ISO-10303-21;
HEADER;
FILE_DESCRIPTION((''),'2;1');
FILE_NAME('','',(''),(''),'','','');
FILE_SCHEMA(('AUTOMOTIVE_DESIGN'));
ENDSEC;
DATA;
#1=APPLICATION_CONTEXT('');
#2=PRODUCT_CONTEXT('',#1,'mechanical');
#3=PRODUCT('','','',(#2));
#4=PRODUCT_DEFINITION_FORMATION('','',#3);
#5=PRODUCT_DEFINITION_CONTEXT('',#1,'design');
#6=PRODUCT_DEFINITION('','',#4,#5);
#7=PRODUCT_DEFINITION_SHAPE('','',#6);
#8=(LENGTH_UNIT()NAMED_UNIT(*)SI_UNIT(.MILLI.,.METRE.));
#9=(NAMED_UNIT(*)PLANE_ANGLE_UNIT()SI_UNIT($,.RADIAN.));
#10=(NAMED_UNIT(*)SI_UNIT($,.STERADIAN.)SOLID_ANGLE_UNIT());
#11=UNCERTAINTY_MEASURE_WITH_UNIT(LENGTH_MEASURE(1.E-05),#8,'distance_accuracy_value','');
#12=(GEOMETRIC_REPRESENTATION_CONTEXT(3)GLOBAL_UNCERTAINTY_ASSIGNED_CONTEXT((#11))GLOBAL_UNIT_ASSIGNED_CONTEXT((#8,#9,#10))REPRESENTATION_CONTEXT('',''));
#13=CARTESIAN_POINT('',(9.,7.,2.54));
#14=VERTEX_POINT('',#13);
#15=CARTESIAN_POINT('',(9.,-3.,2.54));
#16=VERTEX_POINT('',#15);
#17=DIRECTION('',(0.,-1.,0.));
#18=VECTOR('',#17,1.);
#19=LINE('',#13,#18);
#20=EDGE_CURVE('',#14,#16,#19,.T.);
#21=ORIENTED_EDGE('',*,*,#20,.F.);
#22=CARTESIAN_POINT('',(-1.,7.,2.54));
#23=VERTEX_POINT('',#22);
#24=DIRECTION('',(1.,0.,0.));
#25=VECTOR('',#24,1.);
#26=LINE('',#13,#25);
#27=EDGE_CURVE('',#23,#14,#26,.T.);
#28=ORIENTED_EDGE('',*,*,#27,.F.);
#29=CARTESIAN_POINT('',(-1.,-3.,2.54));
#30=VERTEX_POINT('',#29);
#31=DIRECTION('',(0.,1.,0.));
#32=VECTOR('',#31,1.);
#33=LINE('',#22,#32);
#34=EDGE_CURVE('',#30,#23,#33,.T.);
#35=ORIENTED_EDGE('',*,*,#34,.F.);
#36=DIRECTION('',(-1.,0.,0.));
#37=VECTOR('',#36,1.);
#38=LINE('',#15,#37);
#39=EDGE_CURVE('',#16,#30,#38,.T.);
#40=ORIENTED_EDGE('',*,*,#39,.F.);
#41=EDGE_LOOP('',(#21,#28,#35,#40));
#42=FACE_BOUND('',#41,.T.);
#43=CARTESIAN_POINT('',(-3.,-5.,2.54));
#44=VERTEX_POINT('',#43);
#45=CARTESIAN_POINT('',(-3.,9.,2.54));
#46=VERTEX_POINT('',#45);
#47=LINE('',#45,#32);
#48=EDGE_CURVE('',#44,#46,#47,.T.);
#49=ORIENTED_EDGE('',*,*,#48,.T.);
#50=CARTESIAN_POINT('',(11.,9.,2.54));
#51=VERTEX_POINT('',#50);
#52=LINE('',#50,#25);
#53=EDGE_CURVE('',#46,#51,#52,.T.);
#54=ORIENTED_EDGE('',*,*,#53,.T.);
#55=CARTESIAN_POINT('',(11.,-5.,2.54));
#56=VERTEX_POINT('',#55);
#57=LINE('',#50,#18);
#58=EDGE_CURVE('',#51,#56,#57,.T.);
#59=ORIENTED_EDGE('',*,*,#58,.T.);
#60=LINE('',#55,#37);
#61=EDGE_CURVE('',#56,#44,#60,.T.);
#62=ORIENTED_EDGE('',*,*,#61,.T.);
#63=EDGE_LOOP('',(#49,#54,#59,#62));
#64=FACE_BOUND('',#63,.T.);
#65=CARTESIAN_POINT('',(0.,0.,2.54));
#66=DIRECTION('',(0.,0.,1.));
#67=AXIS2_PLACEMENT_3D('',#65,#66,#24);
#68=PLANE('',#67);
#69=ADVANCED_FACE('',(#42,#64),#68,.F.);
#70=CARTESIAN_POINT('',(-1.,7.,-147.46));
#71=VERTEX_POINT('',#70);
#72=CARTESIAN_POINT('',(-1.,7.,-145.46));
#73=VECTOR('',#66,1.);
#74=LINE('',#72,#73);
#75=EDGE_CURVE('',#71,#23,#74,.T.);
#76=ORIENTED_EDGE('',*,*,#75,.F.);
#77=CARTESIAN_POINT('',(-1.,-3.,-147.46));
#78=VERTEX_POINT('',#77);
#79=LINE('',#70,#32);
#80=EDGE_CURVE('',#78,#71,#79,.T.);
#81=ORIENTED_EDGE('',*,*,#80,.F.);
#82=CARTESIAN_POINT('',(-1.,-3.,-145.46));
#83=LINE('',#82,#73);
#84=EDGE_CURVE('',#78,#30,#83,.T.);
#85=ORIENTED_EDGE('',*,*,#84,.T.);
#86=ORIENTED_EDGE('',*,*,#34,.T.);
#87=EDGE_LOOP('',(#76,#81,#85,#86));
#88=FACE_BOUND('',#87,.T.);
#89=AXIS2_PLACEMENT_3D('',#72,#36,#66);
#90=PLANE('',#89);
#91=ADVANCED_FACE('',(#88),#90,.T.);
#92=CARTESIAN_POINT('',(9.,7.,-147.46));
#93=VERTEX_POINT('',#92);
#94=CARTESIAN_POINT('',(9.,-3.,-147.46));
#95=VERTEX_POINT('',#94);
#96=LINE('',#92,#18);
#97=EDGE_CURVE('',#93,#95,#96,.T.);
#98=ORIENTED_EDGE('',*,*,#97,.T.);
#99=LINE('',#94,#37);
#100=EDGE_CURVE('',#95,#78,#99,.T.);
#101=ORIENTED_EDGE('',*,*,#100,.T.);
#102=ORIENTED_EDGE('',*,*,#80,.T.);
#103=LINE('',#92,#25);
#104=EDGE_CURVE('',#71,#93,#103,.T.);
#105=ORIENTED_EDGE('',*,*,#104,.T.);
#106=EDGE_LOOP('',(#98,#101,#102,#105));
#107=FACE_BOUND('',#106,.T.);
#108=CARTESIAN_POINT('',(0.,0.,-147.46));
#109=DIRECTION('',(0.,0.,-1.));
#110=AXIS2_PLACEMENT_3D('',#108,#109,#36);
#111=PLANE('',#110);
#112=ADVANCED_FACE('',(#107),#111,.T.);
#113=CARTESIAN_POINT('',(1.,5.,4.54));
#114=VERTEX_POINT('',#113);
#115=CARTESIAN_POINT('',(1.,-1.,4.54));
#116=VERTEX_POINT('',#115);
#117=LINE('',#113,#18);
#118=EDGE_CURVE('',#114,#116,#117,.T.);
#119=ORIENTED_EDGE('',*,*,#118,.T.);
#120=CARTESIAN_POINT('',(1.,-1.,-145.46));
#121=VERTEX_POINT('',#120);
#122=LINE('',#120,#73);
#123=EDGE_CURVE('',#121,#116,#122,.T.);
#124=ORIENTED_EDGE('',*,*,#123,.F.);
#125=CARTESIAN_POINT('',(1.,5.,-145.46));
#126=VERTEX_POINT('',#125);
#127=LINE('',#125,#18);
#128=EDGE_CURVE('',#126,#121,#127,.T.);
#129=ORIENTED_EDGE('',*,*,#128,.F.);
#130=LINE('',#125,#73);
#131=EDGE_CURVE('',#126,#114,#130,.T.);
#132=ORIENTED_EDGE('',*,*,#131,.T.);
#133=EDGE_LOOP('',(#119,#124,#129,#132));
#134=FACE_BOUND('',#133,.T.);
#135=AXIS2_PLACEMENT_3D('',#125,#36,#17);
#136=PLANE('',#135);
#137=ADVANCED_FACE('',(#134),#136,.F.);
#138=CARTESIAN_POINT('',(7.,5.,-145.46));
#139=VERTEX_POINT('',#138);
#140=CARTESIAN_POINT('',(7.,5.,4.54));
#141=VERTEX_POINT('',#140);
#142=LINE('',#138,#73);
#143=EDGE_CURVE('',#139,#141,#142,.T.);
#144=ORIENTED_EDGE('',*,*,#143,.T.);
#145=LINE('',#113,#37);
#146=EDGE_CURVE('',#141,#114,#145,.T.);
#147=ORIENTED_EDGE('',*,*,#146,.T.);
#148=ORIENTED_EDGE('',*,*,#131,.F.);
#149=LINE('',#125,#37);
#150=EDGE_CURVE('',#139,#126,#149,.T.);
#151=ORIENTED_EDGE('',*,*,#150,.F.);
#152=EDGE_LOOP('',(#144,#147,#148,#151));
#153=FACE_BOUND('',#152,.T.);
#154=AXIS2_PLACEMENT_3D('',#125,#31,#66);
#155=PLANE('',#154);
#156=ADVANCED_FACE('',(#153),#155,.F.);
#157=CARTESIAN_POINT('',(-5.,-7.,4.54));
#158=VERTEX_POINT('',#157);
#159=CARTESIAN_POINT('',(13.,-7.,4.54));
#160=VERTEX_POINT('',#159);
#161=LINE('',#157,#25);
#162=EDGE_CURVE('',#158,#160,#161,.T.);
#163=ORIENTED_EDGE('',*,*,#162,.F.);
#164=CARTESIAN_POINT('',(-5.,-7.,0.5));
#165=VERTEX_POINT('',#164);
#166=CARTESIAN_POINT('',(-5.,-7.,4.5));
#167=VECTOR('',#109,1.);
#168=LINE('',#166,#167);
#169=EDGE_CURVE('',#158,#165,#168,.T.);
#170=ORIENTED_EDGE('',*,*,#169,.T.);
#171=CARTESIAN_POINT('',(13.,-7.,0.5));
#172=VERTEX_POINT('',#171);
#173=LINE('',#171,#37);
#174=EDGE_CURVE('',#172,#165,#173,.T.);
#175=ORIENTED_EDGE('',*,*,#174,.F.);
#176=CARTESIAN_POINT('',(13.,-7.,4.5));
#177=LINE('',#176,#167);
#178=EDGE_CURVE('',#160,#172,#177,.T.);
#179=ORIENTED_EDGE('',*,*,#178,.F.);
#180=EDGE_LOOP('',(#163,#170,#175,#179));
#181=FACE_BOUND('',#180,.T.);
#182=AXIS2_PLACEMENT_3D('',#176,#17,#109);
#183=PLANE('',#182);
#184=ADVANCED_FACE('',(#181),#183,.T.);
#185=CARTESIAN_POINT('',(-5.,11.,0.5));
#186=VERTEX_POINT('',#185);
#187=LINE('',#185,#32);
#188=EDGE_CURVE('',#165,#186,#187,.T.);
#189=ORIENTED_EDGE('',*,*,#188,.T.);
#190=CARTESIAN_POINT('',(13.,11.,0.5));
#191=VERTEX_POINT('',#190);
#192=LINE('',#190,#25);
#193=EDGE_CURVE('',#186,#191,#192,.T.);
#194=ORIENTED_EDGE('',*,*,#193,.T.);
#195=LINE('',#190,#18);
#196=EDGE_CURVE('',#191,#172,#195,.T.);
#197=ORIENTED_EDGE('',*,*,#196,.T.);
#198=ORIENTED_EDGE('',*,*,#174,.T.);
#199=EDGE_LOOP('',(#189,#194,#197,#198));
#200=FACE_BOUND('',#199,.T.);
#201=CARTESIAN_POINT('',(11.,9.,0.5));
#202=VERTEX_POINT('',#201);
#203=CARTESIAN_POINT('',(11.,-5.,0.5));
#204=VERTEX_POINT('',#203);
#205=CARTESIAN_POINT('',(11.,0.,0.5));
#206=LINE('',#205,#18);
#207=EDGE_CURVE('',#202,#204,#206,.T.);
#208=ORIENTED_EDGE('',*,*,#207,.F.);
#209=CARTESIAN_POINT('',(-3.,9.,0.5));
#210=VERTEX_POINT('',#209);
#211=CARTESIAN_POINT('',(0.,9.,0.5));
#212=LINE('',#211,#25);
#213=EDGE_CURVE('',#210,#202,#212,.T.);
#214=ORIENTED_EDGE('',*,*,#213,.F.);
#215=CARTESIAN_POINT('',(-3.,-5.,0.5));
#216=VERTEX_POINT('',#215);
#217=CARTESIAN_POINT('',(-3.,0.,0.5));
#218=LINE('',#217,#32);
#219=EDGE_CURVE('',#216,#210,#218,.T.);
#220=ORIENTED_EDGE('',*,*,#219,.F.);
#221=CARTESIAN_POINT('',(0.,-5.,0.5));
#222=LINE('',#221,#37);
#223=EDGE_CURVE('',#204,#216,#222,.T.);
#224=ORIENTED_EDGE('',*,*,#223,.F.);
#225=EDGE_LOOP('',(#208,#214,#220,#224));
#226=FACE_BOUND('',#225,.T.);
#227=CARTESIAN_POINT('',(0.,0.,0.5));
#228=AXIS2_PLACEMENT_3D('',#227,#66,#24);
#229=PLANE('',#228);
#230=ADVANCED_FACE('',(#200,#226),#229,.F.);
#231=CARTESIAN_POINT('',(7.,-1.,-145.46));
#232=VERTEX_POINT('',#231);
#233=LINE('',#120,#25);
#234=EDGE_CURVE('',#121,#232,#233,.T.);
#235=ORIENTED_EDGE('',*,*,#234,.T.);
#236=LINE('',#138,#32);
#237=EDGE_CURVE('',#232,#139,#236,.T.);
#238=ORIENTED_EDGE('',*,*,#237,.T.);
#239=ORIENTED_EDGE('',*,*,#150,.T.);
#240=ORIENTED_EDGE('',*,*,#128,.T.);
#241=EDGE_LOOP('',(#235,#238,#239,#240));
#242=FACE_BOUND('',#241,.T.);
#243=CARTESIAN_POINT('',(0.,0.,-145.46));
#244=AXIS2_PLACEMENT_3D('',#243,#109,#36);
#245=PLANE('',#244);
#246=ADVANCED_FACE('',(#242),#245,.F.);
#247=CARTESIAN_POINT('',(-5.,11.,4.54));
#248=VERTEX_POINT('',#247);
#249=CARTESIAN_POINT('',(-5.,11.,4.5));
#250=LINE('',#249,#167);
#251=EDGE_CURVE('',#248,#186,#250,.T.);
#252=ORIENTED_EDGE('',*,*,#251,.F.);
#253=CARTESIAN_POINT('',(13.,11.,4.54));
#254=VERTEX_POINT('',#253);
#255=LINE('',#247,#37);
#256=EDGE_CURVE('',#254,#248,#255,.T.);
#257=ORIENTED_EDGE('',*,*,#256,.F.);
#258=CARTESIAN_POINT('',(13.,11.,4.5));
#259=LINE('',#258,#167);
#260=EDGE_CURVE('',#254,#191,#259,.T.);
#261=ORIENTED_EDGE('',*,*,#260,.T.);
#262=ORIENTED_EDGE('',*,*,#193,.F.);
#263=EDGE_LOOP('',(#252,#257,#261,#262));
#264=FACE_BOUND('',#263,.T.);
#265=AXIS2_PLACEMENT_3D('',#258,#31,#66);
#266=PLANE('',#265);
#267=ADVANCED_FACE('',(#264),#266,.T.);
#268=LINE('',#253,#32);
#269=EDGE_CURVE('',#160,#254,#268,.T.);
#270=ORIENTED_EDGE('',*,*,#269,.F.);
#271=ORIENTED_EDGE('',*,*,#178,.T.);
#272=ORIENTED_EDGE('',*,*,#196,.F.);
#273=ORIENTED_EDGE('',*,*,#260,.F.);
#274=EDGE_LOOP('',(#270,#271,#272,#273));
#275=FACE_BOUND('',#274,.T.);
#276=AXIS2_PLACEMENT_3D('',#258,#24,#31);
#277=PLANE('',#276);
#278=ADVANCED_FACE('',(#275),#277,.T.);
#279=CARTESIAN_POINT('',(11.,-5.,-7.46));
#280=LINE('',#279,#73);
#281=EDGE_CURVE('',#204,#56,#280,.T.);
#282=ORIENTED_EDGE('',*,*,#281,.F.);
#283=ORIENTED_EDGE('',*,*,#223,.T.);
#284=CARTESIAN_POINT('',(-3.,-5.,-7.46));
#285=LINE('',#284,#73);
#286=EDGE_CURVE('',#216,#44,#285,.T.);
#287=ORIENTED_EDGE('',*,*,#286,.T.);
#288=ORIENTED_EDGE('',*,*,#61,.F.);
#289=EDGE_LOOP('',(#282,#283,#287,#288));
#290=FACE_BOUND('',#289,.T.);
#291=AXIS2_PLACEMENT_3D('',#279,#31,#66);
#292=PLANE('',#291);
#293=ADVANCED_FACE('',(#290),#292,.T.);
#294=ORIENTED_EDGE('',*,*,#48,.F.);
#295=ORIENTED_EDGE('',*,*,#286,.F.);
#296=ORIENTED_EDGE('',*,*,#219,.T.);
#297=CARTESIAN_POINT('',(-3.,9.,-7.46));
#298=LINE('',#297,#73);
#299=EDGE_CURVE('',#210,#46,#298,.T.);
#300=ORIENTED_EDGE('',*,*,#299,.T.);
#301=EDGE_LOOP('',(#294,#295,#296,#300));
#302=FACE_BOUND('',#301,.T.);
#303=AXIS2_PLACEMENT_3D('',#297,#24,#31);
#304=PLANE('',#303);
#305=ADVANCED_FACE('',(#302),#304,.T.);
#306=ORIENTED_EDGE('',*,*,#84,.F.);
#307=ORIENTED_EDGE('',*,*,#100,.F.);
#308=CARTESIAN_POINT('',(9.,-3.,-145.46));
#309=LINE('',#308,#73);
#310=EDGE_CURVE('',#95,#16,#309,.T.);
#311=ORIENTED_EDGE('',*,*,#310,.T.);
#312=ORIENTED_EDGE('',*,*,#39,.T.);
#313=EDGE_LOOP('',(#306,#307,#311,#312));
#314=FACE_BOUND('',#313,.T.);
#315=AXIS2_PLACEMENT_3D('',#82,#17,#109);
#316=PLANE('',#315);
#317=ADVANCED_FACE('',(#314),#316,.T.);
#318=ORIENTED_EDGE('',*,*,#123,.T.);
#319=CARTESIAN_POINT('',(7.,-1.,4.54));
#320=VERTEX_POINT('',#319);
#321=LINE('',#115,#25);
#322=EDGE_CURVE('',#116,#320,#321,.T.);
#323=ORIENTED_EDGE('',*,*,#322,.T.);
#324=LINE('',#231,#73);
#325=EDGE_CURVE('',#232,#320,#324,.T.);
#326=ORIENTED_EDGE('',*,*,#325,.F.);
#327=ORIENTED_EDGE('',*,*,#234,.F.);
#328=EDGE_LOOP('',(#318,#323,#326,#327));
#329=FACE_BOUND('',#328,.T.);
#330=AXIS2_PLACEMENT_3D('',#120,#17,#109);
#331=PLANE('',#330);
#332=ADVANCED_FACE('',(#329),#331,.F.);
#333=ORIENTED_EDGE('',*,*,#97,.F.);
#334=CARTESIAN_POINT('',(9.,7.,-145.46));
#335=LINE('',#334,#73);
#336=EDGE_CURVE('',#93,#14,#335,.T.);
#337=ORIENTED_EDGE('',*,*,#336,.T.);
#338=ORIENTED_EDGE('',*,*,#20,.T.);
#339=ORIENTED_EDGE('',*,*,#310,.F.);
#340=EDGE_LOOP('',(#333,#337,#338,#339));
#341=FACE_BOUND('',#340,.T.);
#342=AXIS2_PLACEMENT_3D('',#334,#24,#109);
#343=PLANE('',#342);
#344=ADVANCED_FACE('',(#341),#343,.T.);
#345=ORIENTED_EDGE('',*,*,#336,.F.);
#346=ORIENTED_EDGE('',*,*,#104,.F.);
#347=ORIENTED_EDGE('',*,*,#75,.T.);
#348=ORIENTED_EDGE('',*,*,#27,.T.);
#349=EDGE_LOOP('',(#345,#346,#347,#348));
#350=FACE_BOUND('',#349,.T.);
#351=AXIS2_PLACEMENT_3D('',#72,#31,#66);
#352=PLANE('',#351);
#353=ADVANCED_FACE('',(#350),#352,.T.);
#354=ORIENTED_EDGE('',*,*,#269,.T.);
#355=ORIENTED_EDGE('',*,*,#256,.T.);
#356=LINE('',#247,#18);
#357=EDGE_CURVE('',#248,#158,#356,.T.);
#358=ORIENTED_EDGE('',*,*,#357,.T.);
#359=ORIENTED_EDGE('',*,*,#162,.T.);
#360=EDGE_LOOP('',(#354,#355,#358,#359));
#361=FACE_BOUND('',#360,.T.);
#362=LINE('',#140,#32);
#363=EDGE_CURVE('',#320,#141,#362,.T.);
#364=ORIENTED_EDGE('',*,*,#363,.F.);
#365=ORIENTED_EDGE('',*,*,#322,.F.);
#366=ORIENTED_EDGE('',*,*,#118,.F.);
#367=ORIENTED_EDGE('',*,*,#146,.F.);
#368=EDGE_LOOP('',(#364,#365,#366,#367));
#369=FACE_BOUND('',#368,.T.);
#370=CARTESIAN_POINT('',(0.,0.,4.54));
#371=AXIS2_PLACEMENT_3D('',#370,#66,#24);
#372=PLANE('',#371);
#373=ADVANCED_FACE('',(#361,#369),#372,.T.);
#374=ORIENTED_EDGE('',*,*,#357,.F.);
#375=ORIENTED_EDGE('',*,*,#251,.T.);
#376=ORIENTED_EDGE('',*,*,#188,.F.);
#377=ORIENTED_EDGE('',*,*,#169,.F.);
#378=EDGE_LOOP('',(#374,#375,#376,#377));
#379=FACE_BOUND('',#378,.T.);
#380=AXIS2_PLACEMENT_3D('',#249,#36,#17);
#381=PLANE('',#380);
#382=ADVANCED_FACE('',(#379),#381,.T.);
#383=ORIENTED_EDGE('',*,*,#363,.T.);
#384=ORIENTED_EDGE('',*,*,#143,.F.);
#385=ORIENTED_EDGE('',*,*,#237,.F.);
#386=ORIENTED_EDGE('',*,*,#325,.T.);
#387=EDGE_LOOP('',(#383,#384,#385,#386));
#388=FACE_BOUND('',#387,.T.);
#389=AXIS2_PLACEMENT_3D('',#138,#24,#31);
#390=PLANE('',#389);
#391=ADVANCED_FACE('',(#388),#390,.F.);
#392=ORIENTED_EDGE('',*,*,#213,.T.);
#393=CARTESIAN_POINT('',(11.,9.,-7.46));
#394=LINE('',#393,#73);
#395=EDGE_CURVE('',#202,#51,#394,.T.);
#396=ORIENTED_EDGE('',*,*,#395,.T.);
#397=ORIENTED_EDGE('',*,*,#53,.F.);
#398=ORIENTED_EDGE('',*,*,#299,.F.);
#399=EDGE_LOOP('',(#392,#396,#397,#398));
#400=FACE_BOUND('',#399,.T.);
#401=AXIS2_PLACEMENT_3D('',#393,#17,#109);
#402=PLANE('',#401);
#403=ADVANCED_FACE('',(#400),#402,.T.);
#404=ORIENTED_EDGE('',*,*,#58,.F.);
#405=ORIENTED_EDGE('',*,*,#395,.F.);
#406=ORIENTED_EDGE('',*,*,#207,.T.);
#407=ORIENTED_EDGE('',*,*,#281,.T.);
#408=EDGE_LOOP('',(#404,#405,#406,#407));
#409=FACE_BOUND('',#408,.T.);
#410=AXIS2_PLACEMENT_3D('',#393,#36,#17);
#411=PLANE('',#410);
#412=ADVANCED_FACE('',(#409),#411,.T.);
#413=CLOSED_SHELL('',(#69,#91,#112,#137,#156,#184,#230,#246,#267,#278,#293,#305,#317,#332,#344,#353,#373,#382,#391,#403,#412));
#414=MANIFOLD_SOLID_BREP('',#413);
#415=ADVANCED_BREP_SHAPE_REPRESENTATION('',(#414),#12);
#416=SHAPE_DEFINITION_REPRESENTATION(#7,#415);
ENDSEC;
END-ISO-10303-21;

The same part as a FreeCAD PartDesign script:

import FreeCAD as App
import Part
import Sketcher

doc = App.newDocument("Part")
body = doc.addObject("PartDesign::Body", "Body")

sketch1 = body.newObject("Sketcher::SketchObject", "Sketch")
sketch1.AttachmentSupport = (doc.getObject("XY_Plane"), [""])
sketch1.MapMode = "FlatFace"
sketch1.addGeometry(Part.LineSegment(App.Vector(-2, 8, 0), App.Vector(-2, -2, 0)), False)
sketch1.addGeometry(Part.LineSegment(App.Vector(-2, -2, 0), App.Vector(8, -2, 0)), False)
sketch1.addGeometry(Part.LineSegment(App.Vector(8, -2, 0), App.Vector(8, 8, 0)), False)
sketch1.addGeometry(Part.LineSegment(App.Vector(8, 8, 0), App.Vector(-2, 8, 0)), False)
sketch1.addGeometry(Part.LineSegment(App.Vector(6, 0, 0), App.Vector(0, 0, 0)), False)
sketch1.addGeometry(Part.LineSegment(App.Vector(0, 0, 0), App.Vector(0, 6, 0)), False)
sketch1.addGeometry(Part.LineSegment(App.Vector(0, 6, 0), App.Vector(6, 6, 0)), False)
sketch1.addGeometry(Part.LineSegment(App.Vector(6, 6, 0), App.Vector(6, 0, 0)), False)
sketch1.addConstraint(Sketcher.Constraint("Coincident", 0, 2, 1, 1))
sketch1.addConstraint(Sketcher.Constraint("Coincident", 1, 2, 2, 1))
sketch1.addConstraint(Sketcher.Constraint("Coincident", 2, 2, 3, 1))
sketch1.addConstraint(Sketcher.Constraint("Coincident", 3, 2, 0, 1))
sketch1.addConstraint(Sketcher.Constraint("Coincident", 4, 2, 5, 1))
sketch1.addConstraint(Sketcher.Constraint("Coincident", 5, 2, 6, 1))
sketch1.addConstraint(Sketcher.Constraint("Coincident", 6, 2, 7, 1))
sketch1.addConstraint(Sketcher.Constraint("Coincident", 7, 2, 4, 1))
sketch1.addConstraint(Sketcher.Constraint("Vertical", 0))
sketch1.addConstraint(Sketcher.Constraint("Horizontal", 1))
sketch1.addConstraint(Sketcher.Constraint("Vertical", 2))
sketch1.addConstraint(Sketcher.Constraint("Horizontal", 3))
sketch1.addConstraint(Sketcher.Constraint("Horizontal", 4))
sketch1.addConstraint(Sketcher.Constraint("Vertical", 5))
sketch1.addConstraint(Sketcher.Constraint("Horizontal", 6))
sketch1.addConstraint(Sketcher.Constraint("Vertical", 7))
sketch1.addConstraint(Sketcher.Constraint("Coincident", 4, 2, -1, 1))
sketch1.addConstraint(Sketcher.Constraint("Equal", 3, 0))
sketch1.addConstraint(Sketcher.Constraint("Equal", 6, 5))
sketch1.addConstraint(Sketcher.Constraint("DistanceX", 1, 1, 1, 2, 10.0))
sketch1.addConstraint(Sketcher.Constraint("DistanceX", 4, 2, 4, 1, 6.0))
sketch1.addConstraint(Sketcher.Constraint("DistanceX", 0, 2, -1, 1, 2.0))
sketch1.addConstraint(Sketcher.Constraint("DistanceY", 0, 2, -1, 1, 2.0))
pad1 = body.newObject("PartDesign::Pad", "Pad")
pad1.Profile = sketch1
pad1.Length = 2.54

sketch2 = body.newObject("Sketcher::SketchObject", "Sketch001")
sketch2.AttachmentSupport = (doc.getObject("XY_Plane"), [""])
sketch2.MapMode = "FlatFace"
sketch2.addGeometry(Part.LineSegment(App.Vector(8, -2, 0), App.Vector(8, 8, 0)), False)
sketch2.addGeometry(Part.LineSegment(App.Vector(8, 8, 0), App.Vector(10, 8, 0)), False)
sketch2.addGeometry(Part.LineSegment(App.Vector(10, 8, 0), App.Vector(10, -4, 0)), False)
sketch2.addGeometry(Part.LineSegment(App.Vector(10, -4, 0), App.Vector(-2, -4, 0)), False)
sketch2.addGeometry(Part.LineSegment(App.Vector(-2, -4, 0), App.Vector(-2, -2, 0)), False)
sketch2.addGeometry(Part.LineSegment(App.Vector(-2, -2, 0), App.Vector(8, -2, 0)), False)
sketch2.addConstraint(Sketcher.Constraint("Coincident", 0, 2, 1, 1))
sketch2.addConstraint(Sketcher.Constraint("Coincident", 1, 2, 2, 1))
sketch2.addConstraint(Sketcher.Constraint("Coincident", 2, 2, 3, 1))
sketch2.addConstraint(Sketcher.Constraint("Coincident", 3, 2, 4, 1))
sketch2.addConstraint(Sketcher.Constraint("Coincident", 4, 2, 5, 1))
sketch2.addConstraint(Sketcher.Constraint("Coincident", 5, 2, 0, 1))
sketch2.addConstraint(Sketcher.Constraint("Vertical", 0))
sketch2.addConstraint(Sketcher.Constraint("Horizontal", 1))
sketch2.addConstraint(Sketcher.Constraint("Vertical", 2))
sketch2.addConstraint(Sketcher.Constraint("Horizontal", 3))
sketch2.addConstraint(Sketcher.Constraint("Vertical", 4))
sketch2.addConstraint(Sketcher.Constraint("Horizontal", 5))
sketch2.addConstraint(Sketcher.Constraint("Equal", 5, 0))
sketch2.addConstraint(Sketcher.Constraint("Equal", 3, 2))
sketch2.addConstraint(Sketcher.Constraint("DistanceX", 1, 1, 1, 2, 2.0))
sketch2.addConstraint(Sketcher.Constraint("DistanceX", 3, 2, 3, 1, 12.0))
sketch2.addConstraint(Sketcher.Constraint("DistanceX", -1, 1, 0, 2, 8.0))
sketch2.addConstraint(Sketcher.Constraint("DistanceY", -1, 1, 0, 2, 8.0))
pad2 = body.newObject("PartDesign::Pad", "Pad001")
pad2.Profile = sketch2
pad2.Length = 2.54

sketch3 = body.newObject("Sketcher::SketchObject", "Sketch002")
sketch3.AttachmentSupport = (doc.getObject("XY_Plane"), [""])
sketch3.MapMode = "FlatFace"
sketch3.addGeometry(Part.LineSegment(App.Vector(6, 0, 0), App.Vector(6, 6, 0)), False)
sketch3.addGeometry(Part.LineSegment(App.Vector(6, 6, 0), App.Vector(8, 6, 0)), False)
sketch3.addGeometry(Part.LineSegment(App.Vector(8, 6, 0), App.Vector(8, -2, 0)), False)
sketch3.addGeometry(Part.LineSegment(App.Vector(8, -2, 0), App.Vector(0, -2, 0)), False)
sketch3.addGeometry(Part.LineSegment(App.Vector(0, -2, 0), App.Vector(0, 0, 0)), False)
sketch3.addGeometry(Part.LineSegment(App.Vector(0, 0, 0), App.Vector(6, 0, 0)), False)
sketch3.addConstraint(Sketcher.Constraint("Coincident", 0, 2, 1, 1))
sketch3.addConstraint(Sketcher.Constraint("Coincident", 1, 2, 2, 1))
sketch3.addConstraint(Sketcher.Constraint("Coincident", 2, 2, 3, 1))
sketch3.addConstraint(Sketcher.Constraint("Coincident", 3, 2, 4, 1))
sketch3.addConstraint(Sketcher.Constraint("Coincident", 4, 2, 5, 1))
sketch3.addConstraint(Sketcher.Constraint("Coincident", 5, 2, 0, 1))
sketch3.addConstraint(Sketcher.Constraint("Vertical", 0))
sketch3.addConstraint(Sketcher.Constraint("Horizontal", 1))
sketch3.addConstraint(Sketcher.Constraint("Vertical", 2))
sketch3.addConstraint(Sketcher.Constraint("Horizontal", 3))
sketch3.addConstraint(Sketcher.Constraint("Vertical", 4))
sketch3.addConstraint(Sketcher.Constraint("Horizontal", 5))
sketch3.addConstraint(Sketcher.Constraint("Coincident", 4, 2, -1, 1))
sketch3.addConstraint(Sketcher.Constraint("Equal", 5, 0))
sketch3.addConstraint(Sketcher.Constraint("Equal", 3, 2))
sketch3.addConstraint(Sketcher.Constraint("DistanceX", 1, 1, 1, 2, 2.0))
sketch3.addConstraint(Sketcher.Constraint("DistanceX", 3, 2, 3, 1, 8.0))
pocket1 = body.newObject("PartDesign::Pocket", "Pocket")
pocket1.Profile = sketch3
pocket1.Length = 2.54
pocket1.Reversed = True

sketch4 = body.newObject("Sketcher::SketchObject", "Sketch003")
sketch4.AttachmentSupport = (doc.getObject("XY_Plane"), [""])
sketch4.MapMode = "FlatFace"
sketch4.addGeometry(Part.LineSegment(App.Vector(10, -4, 0), App.Vector(10, 8, 0)), False)
sketch4.addGeometry(Part.LineSegment(App.Vector(10, 8, 0), App.Vector(12, 8, 0)), False)
sketch4.addGeometry(Part.LineSegment(App.Vector(12, 8, 0), App.Vector(12, -6, 0)), False)
sketch4.addGeometry(Part.LineSegment(App.Vector(12, -6, 0), App.Vector(-2, -6, 0)), False)
sketch4.addGeometry(Part.LineSegment(App.Vector(-2, -6, 0), App.Vector(-2, -4, 0)), False)
sketch4.addGeometry(Part.LineSegment(App.Vector(-2, -4, 0), App.Vector(10, -4, 0)), False)
sketch4.addConstraint(Sketcher.Constraint("Coincident", 0, 2, 1, 1))
sketch4.addConstraint(Sketcher.Constraint("Coincident", 1, 2, 2, 1))
sketch4.addConstraint(Sketcher.Constraint("Coincident", 2, 2, 3, 1))
sketch4.addConstraint(Sketcher.Constraint("Coincident", 3, 2, 4, 1))
sketch4.addConstraint(Sketcher.Constraint("Coincident", 4, 2, 5, 1))
sketch4.addConstraint(Sketcher.Constraint("Coincident", 5, 2, 0, 1))
sketch4.addConstraint(Sketcher.Constraint("Vertical", 0))
sketch4.addConstraint(Sketcher.Constraint("Horizontal", 1))
sketch4.addConstraint(Sketcher.Constraint("Vertical", 2))
sketch4.addConstraint(Sketcher.Constraint("Horizontal", 3))
sketch4.addConstraint(Sketcher.Constraint("Vertical", 4))
sketch4.addConstraint(Sketcher.Constraint("Horizontal", 5))
sketch4.addConstraint(Sketcher.Constraint("Equal", 5, 0))
sketch4.addConstraint(Sketcher.Constraint("Equal", 3, 2))
sketch4.addConstraint(Sketcher.Constraint("DistanceX", 1, 1, 1, 2, 2.0))
sketch4.addConstraint(Sketcher.Constraint("DistanceX", 3, 2, 3, 1, 14.0))
sketch4.addConstraint(Sketcher.Constraint("DistanceX", -1, 1, 0, 2, 10.0))
sketch4.addConstraint(Sketcher.Constraint("DistanceY", -1, 1, 0, 2, 8.0))
pad3 = body.newObject("PartDesign::Pad", "Pad002")
pad3.Profile = sketch4
pad3.Length = 2.54

sketch5 = body.newObject("Sketcher::SketchObject", "Sketch004")
sketch5.AttachmentSupport = (doc.getObject("XY_Plane"), [""])
sketch5.MapMode = "FlatFace"
sketch5.addGeometry(Part.LineSegment(App.Vector(12, 8, 0), App.Vector(-2, 8, 0)), False)
sketch5.addGeometry(Part.LineSegment(App.Vector(-2, 8, 0), App.Vector(-2, -6, 0)), False)
sketch5.addGeometry(Part.LineSegment(App.Vector(-2, -6, 0), App.Vector(-4, -6, 0)), False)
sketch5.addGeometry(Part.LineSegment(App.Vector(-4, -6, 0), App.Vector(-4, 10, 0)), False)
sketch5.addGeometry(Part.LineSegment(App.Vector(-4, 10, 0), App.Vector(12, 10, 0)), False)
sketch5.addGeometry(Part.LineSegment(App.Vector(12, 10, 0), App.Vector(12, 8, 0)), False)
sketch5.addConstraint(Sketcher.Constraint("Coincident", 0, 2, 1, 1))
sketch5.addConstraint(Sketcher.Constraint("Coincident", 1, 2, 2, 1))
sketch5.addConstraint(Sketcher.Constraint("Coincident", 2, 2, 3, 1))
sketch5.addConstraint(Sketcher.Constraint("Coincident", 3, 2, 4, 1))
sketch5.addConstraint(Sketcher.Constraint("Coincident", 4, 2, 5, 1))
sketch5.addConstraint(Sketcher.Constraint("Coincident", 5, 2, 0, 1))
sketch5.addConstraint(Sketcher.Constraint("Horizontal", 0))
sketch5.addConstraint(Sketcher.Constraint("Vertical", 1))
sketch5.addConstraint(Sketcher.Constraint("Horizontal", 2))
sketch5.addConstraint(Sketcher.Constraint("Vertical", 3))
sketch5.addConstraint(Sketcher.Constraint("Horizontal", 4))
sketch5.addConstraint(Sketcher.Constraint("Vertical", 5))
sketch5.addConstraint(Sketcher.Constraint("Equal", 0, 1))
sketch5.addConstraint(Sketcher.Constraint("Equal", 4, 3))
sketch5.addConstraint(Sketcher.Constraint("DistanceX", 0, 2, 0, 1, 14.0))
sketch5.addConstraint(Sketcher.Constraint("DistanceX", 2, 2, 2, 1, 2.0))
sketch5.addConstraint(Sketcher.Constraint("DistanceX", 0, 2, -1, 1, 2.0))
sketch5.addConstraint(Sketcher.Constraint("DistanceY", -1, 1, 0, 2, 8.0))
pad4 = body.newObject("PartDesign::Pad", "Pad003")
pad4.Profile = sketch5
pad4.Length = 2.54

sketch6 = body.newObject("Sketcher::SketchObject", "Sketch005")
sketch6.AttachmentSupport = (doc.getObject("XY_Plane"), [""])
sketch6.MapMode = "FlatFace"
sketch6.addGeometry(Part.LineSegment(App.Vector(12, 10, 0), App.Vector(12, -6, 0)), False)
sketch6.addGeometry(Part.LineSegment(App.Vector(12, -6, 0), App.Vector(-4, -6, 0)), False)
sketch6.addGeometry(Part.LineSegment(App.Vector(-4, -6, 0), App.Vector(-4, 10, 0)), False)
sketch6.addGeometry(Part.LineSegment(App.Vector(-4, 10, 0), App.Vector(12, 10, 0)), False)
sketch6.addGeometry(Part.LineSegment(App.Vector(-2, -4, 0), App.Vector(10, -4, 0)), False)
sketch6.addGeometry(Part.LineSegment(App.Vector(10, -4, 0), App.Vector(10, 8, 0)), False)
sketch6.addGeometry(Part.LineSegment(App.Vector(10, 8, 0), App.Vector(-2, 8, 0)), False)
sketch6.addGeometry(Part.LineSegment(App.Vector(-2, 8, 0), App.Vector(-2, -4, 0)), False)
sketch6.addConstraint(Sketcher.Constraint("Coincident", 0, 2, 1, 1))
sketch6.addConstraint(Sketcher.Constraint("Coincident", 1, 2, 2, 1))
sketch6.addConstraint(Sketcher.Constraint("Coincident", 2, 2, 3, 1))
sketch6.addConstraint(Sketcher.Constraint("Coincident", 3, 2, 0, 1))
sketch6.addConstraint(Sketcher.Constraint("Coincident", 4, 2, 5, 1))
sketch6.addConstraint(Sketcher.Constraint("Coincident", 5, 2, 6, 1))
sketch6.addConstraint(Sketcher.Constraint("Coincident", 6, 2, 7, 1))
sketch6.addConstraint(Sketcher.Constraint("Coincident", 7, 2, 4, 1))
sketch6.addConstraint(Sketcher.Constraint("Vertical", 0))
sketch6.addConstraint(Sketcher.Constraint("Horizontal", 1))
sketch6.addConstraint(Sketcher.Constraint("Vertical", 2))
sketch6.addConstraint(Sketcher.Constraint("Horizontal", 3))
sketch6.addConstraint(Sketcher.Constraint("Horizontal", 4))
sketch6.addConstraint(Sketcher.Constraint("Vertical", 5))
sketch6.addConstraint(Sketcher.Constraint("Horizontal", 6))
sketch6.addConstraint(Sketcher.Constraint("Vertical", 7))
sketch6.addConstraint(Sketcher.Constraint("Equal", 3, 0))
sketch6.addConstraint(Sketcher.Constraint("Equal", 6, 5))
sketch6.addConstraint(Sketcher.Constraint("DistanceX", 1, 2, 1, 1, 16.0))
sketch6.addConstraint(Sketcher.Constraint("DistanceX", 4, 1, 4, 2, 12.0))
sketch6.addConstraint(Sketcher.Constraint("DistanceX", -1, 1, 0, 2, 12.0))
sketch6.addConstraint(Sketcher.Constraint("DistanceY", 0, 2, -1, 1, 6.0))
sketch6.addConstraint(Sketcher.Constraint("DistanceX", -1, 1, 4, 2, 10.0))
sketch6.addConstraint(Sketcher.Constraint("DistanceY", 4, 2, -1, 1, 4.0))
pocket2 = body.newObject("PartDesign::Pocket", "Pocket001")
pocket2.Profile = sketch6
pocket2.Length = 0.5
pocket2.Reversed = True

sketch7 = body.newObject("Sketcher::SketchObject", "Sketch006")
sketch7.AttachmentSupport = (doc.getObject("XY_Plane"), [""])
sketch7.MapMode = "FlatFace"
sketch7.addGeometry(Part.LineSegment(App.Vector(10, 8, 0), App.Vector(10, -4, 0)), False)
sketch7.addGeometry(Part.LineSegment(App.Vector(10, -4, 0), App.Vector(-2, -4, 0)), False)
sketch7.addGeometry(Part.LineSegment(App.Vector(-2, -4, 0), App.Vector(-2, 8, 0)), False)
sketch7.addGeometry(Part.LineSegment(App.Vector(-2, 8, 0), App.Vector(10, 8, 0)), False)
sketch7.addGeometry(Part.LineSegment(App.Vector(0, -2, 0), App.Vector(8, -2, 0)), False)
sketch7.addGeometry(Part.LineSegment(App.Vector(8, -2, 0), App.Vector(8, 6, 0)), False)
sketch7.addGeometry(Part.LineSegment(App.Vector(8, 6, 0), App.Vector(0, 6, 0)), False)
sketch7.addGeometry(Part.LineSegment(App.Vector(0, 6, 0), App.Vector(0, -2, 0)), False)
sketch7.addConstraint(Sketcher.Constraint("Coincident", 0, 2, 1, 1))
sketch7.addConstraint(Sketcher.Constraint("Coincident", 1, 2, 2, 1))
sketch7.addConstraint(Sketcher.Constraint("Coincident", 2, 2, 3, 1))
sketch7.addConstraint(Sketcher.Constraint("Coincident", 3, 2, 0, 1))
sketch7.addConstraint(Sketcher.Constraint("Coincident", 4, 2, 5, 1))
sketch7.addConstraint(Sketcher.Constraint("Coincident", 5, 2, 6, 1))
sketch7.addConstraint(Sketcher.Constraint("Coincident", 6, 2, 7, 1))
sketch7.addConstraint(Sketcher.Constraint("Coincident", 7, 2, 4, 1))
sketch7.addConstraint(Sketcher.Constraint("Vertical", 0))
sketch7.addConstraint(Sketcher.Constraint("Horizontal", 1))
sketch7.addConstraint(Sketcher.Constraint("Vertical", 2))
sketch7.addConstraint(Sketcher.Constraint("Horizontal", 3))
sketch7.addConstraint(Sketcher.Constraint("Horizontal", 4))
sketch7.addConstraint(Sketcher.Constraint("Vertical", 5))
sketch7.addConstraint(Sketcher.Constraint("Horizontal", 6))
sketch7.addConstraint(Sketcher.Constraint("Vertical", 7))
sketch7.addConstraint(Sketcher.Constraint("PointOnObject", 6, 2, -2))
sketch7.addConstraint(Sketcher.Constraint("Equal", 3, 0))
sketch7.addConstraint(Sketcher.Constraint("Equal", 6, 5))
sketch7.addConstraint(Sketcher.Constraint("DistanceX", 1, 2, 1, 1, 12.0))
sketch7.addConstraint(Sketcher.Constraint("DistanceX", 4, 1, 4, 2, 8.0))
sketch7.addConstraint(Sketcher.Constraint("DistanceX", -1, 1, 0, 2, 10.0))
sketch7.addConstraint(Sketcher.Constraint("DistanceY", 0, 2, -1, 1, 4.0))
sketch7.addConstraint(Sketcher.Constraint("DistanceY", 4, 2, -1, 1, 2.0))
pocket3 = body.newObject("PartDesign::Pocket", "Pocket002")
pocket3.Profile = sketch7
pocket3.Length = 10
pocket3.Reversed = True

sketch8 = body.newObject("Sketcher::SketchObject", "Sketch007")
sketch8.AttachmentSupport = (doc.getObject("XY_Plane"), [""])
sketch8.MapMode = "FlatFace"
sketch8.AttachmentOffset = App.Placement(App.Vector(0, 0, 2.54), App.Rotation())
sketch8.addGeometry(Part.LineSegment(App.Vector(-4, 10, 0), App.Vector(-4, -6, 0)), False)
sketch8.addGeometry(Part.LineSegment(App.Vector(-4, -6, 0), App.Vector(12, -6, 0)), False)
sketch8.addGeometry(Part.LineSegment(App.Vector(12, -6, 0), App.Vector(12, 10, 0)), False)
sketch8.addGeometry(Part.LineSegment(App.Vector(12, 10, 0), App.Vector(-4, 10, 0)), False)
sketch8.addGeometry(Part.LineSegment(App.Vector(8, -2, 0), App.Vector(0, -2, 0)), False)
sketch8.addGeometry(Part.LineSegment(App.Vector(0, -2, 0), App.Vector(0, 6, 0)), False)
sketch8.addGeometry(Part.LineSegment(App.Vector(0, 6, 0), App.Vector(8, 6, 0)), False)
sketch8.addGeometry(Part.LineSegment(App.Vector(8, 6, 0), App.Vector(8, -2, 0)), False)
sketch8.addConstraint(Sketcher.Constraint("Coincident", 0, 2, 1, 1))
sketch8.addConstraint(Sketcher.Constraint("Coincident", 1, 2, 2, 1))
sketch8.addConstraint(Sketcher.Constraint("Coincident", 2, 2, 3, 1))
sketch8.addConstraint(Sketcher.Constraint("Coincident", 3, 2, 0, 1))
sketch8.addConstraint(Sketcher.Constraint("Coincident", 4, 2, 5, 1))
sketch8.addConstraint(Sketcher.Constraint("Coincident", 5, 2, 6, 1))
sketch8.addConstraint(Sketcher.Constraint("Coincident", 6, 2, 7, 1))
sketch8.addConstraint(Sketcher.Constraint("Coincident", 7, 2, 4, 1))
sketch8.addConstraint(Sketcher.Constraint("Vertical", 0))
sketch8.addConstraint(Sketcher.Constraint("Horizontal", 1))
sketch8.addConstraint(Sketcher.Constraint("Vertical", 2))
sketch8.addConstraint(Sketcher.Constraint("Horizontal", 3))
sketch8.addConstraint(Sketcher.Constraint("Horizontal", 4))
sketch8.addConstraint(Sketcher.Constraint("Vertical", 5))
sketch8.addConstraint(Sketcher.Constraint("Horizontal", 6))
sketch8.addConstraint(Sketcher.Constraint("Vertical", 7))
sketch8.addConstraint(Sketcher.Constraint("PointOnObject", 4, 2, -2))
sketch8.addConstraint(Sketcher.Constraint("Equal", 3, 0))
sketch8.addConstraint(Sketcher.Constraint("Equal", 6, 5))
sketch8.addConstraint(Sketcher.Constraint("DistanceX", 1, 1, 1, 2, 16.0))
sketch8.addConstraint(Sketcher.Constraint("DistanceX", 4, 2, 4, 1, 8.0))
sketch8.addConstraint(Sketcher.Constraint("DistanceX", 0, 2, -1, 1, 4.0))
sketch8.addConstraint(Sketcher.Constraint("DistanceY", 0, 2, -1, 1, 6.0))
sketch8.addConstraint(Sketcher.Constraint("DistanceY", 4, 2, -1, 1, 2.0))
pad5 = body.newObject("PartDesign::Pad", "Pad004")
pad5.Profile = sketch8
pad5.Length = 2

sketch9 = body.newObject("Sketcher::SketchObject", "Sketch008")
sketch9.AttachmentSupport = (doc.getObject("XY_Plane"), [""])
sketch9.MapMode = "FlatFace"
sketch9.AttachmentOffset = App.Placement(App.Vector(0, 0, 2.54), App.Rotation())
sketch9.addGeometry(Part.LineSegment(App.Vector(9, 7, 0), App.Vector(9, -3, 0)), False)
sketch9.addGeometry(Part.LineSegment(App.Vector(9, -3, 0), App.Vector(-1, -3, 0)), False)
sketch9.addGeometry(Part.LineSegment(App.Vector(-1, -3, 0), App.Vector(-1, 7, 0)), False)
sketch9.addGeometry(Part.LineSegment(App.Vector(-1, 7, 0), App.Vector(9, 7, 0)), False)
sketch9.addGeometry(Part.LineSegment(App.Vector(1, -1, 0), App.Vector(7, -1, 0)), False)
sketch9.addGeometry(Part.LineSegment(App.Vector(7, -1, 0), App.Vector(7, 5, 0)), False)
sketch9.addGeometry(Part.LineSegment(App.Vector(7, 5, 0), App.Vector(1, 5, 0)), False)
sketch9.addGeometry(Part.LineSegment(App.Vector(1, 5, 0), App.Vector(1, -1, 0)), False)
sketch9.addConstraint(Sketcher.Constraint("Coincident", 0, 2, 1, 1))
sketch9.addConstraint(Sketcher.Constraint("Coincident", 1, 2, 2, 1))
sketch9.addConstraint(Sketcher.Constraint("Coincident", 2, 2, 3, 1))
sketch9.addConstraint(Sketcher.Constraint("Coincident", 3, 2, 0, 1))
sketch9.addConstraint(Sketcher.Constraint("Coincident", 4, 2, 5, 1))
sketch9.addConstraint(Sketcher.Constraint("Coincident", 5, 2, 6, 1))
sketch9.addConstraint(Sketcher.Constraint("Coincident", 6, 2, 7, 1))
sketch9.addConstraint(Sketcher.Constraint("Coincident", 7, 2, 4, 1))
sketch9.addConstraint(Sketcher.Constraint("Vertical", 0))
sketch9.addConstraint(Sketcher.Constraint("Horizontal", 1))
sketch9.addConstraint(Sketcher.Constraint("Vertical", 2))
sketch9.addConstraint(Sketcher.Constraint("Horizontal", 3))
sketch9.addConstraint(Sketcher.Constraint("Horizontal", 4))
sketch9.addConstraint(Sketcher.Constraint("Vertical", 5))
sketch9.addConstraint(Sketcher.Constraint("Horizontal", 6))
sketch9.addConstraint(Sketcher.Constraint("Vertical", 7))
sketch9.addConstraint(Sketcher.Constraint("Equal", 3, 0))
sketch9.addConstraint(Sketcher.Constraint("Equal", 6, 5))
sketch9.addConstraint(Sketcher.Constraint("DistanceX", 1, 2, 1, 1, 10.0))
sketch9.addConstraint(Sketcher.Constraint("DistanceX", 4, 1, 4, 2, 6.0))
sketch9.addConstraint(Sketcher.Constraint("DistanceX", -1, 1, 0, 2, 9.0))
sketch9.addConstraint(Sketcher.Constraint("DistanceY", 0, 2, -1, 1, 3.0))
sketch9.addConstraint(Sketcher.Constraint("DistanceX", -1, 1, 4, 2, 7.0))
sketch9.addConstraint(Sketcher.Constraint("DistanceY", 4, 2, -1, 1, 1.0))
pocket4 = body.newObject("PartDesign::Pocket", "Pocket003")
pocket4.Profile = sketch9
pocket4.Length = 2
pocket4.Reversed = True

sketch10 = body.newObject("Sketcher::SketchObject", "Sketch009")
sketch10.AttachmentSupport = (doc.getObject("XY_Plane"), [""])
sketch10.MapMode = "FlatFace"
sketch10.AttachmentOffset = App.Placement(App.Vector(0, 0, 2.54), App.Rotation())
sketch10.addGeometry(Part.LineSegment(App.Vector(11, 9, 0), App.Vector(11, -5, 0)), False)
sketch10.addGeometry(Part.LineSegment(App.Vector(11, -5, 0), App.Vector(-3, -5, 0)), False)
sketch10.addGeometry(Part.LineSegment(App.Vector(-3, -5, 0), App.Vector(-3, 9, 0)), False)
sketch10.addGeometry(Part.LineSegment(App.Vector(-3, 9, 0), App.Vector(11, 9, 0)), False)
sketch10.addGeometry(Part.LineSegment(App.Vector(-2, -4, 0), App.Vector(10, -4, 0)), False)
sketch10.addGeometry(Part.LineSegment(App.Vector(10, -4, 0), App.Vector(10, 8, 0)), False)
sketch10.addGeometry(Part.LineSegment(App.Vector(10, 8, 0), App.Vector(-2, 8, 0)), False)
sketch10.addGeometry(Part.LineSegment(App.Vector(-2, 8, 0), App.Vector(-2, -4, 0)), False)
sketch10.addConstraint(Sketcher.Constraint("Coincident", 0, 2, 1, 1))
sketch10.addConstraint(Sketcher.Constraint("Coincident", 1, 2, 2, 1))
sketch10.addConstraint(Sketcher.Constraint("Coincident", 2, 2, 3, 1))
sketch10.addConstraint(Sketcher.Constraint("Coincident", 3, 2, 0, 1))
sketch10.addConstraint(Sketcher.Constraint("Coincident", 4, 2, 5, 1))
sketch10.addConstraint(Sketcher.Constraint("Coincident", 5, 2, 6, 1))
sketch10.addConstraint(Sketcher.Constraint("Coincident", 6, 2, 7, 1))
sketch10.addConstraint(Sketcher.Constraint("Coincident", 7, 2, 4, 1))
sketch10.addConstraint(Sketcher.Constraint("Vertical", 0))
sketch10.addConstraint(Sketcher.Constraint("Horizontal", 1))
sketch10.addConstraint(Sketcher.Constraint("Vertical", 2))
sketch10.addConstraint(Sketcher.Constraint("Horizontal", 3))
sketch10.addConstraint(Sketcher.Constraint("Horizontal", 4))
sketch10.addConstraint(Sketcher.Constraint("Vertical", 5))
sketch10.addConstraint(Sketcher.Constraint("Horizontal", 6))
sketch10.addConstraint(Sketcher.Constraint("Vertical", 7))
sketch10.addConstraint(Sketcher.Constraint("Equal", 3, 0))
sketch10.addConstraint(Sketcher.Constraint("Equal", 6, 5))
sketch10.addConstraint(Sketcher.Constraint("DistanceX", 1, 2, 1, 1, 14.0))
sketch10.addConstraint(Sketcher.Constraint("DistanceX", 4, 1, 4, 2, 12.0))
sketch10.addConstraint(Sketcher.Constraint("DistanceX", -1, 1, 0, 2, 11.0))
sketch10.addConstraint(Sketcher.Constraint("DistanceY", 0, 2, -1, 1, 5.0))
sketch10.addConstraint(Sketcher.Constraint("DistanceX", -1, 1, 4, 2, 10.0))
sketch10.addConstraint(Sketcher.Constraint("DistanceY", 4, 2, -1, 1, 4.0))
pocket5 = body.newObject("PartDesign::Pocket", "Pocket004")
pocket5.Profile = sketch10
pocket5.Length = 10

sketch11 = body.newObject("Sketcher::SketchObject", "Sketch010")
sketch11.AttachmentSupport = (doc.getObject("XY_Plane"), [""])
sketch11.MapMode = "FlatFace"
sketch11.AttachmentOffset = App.Placement(App.Vector(0, 0, 0.5), App.Rotation())
sketch11.addGeometry(Part.LineSegment(App.Vector(13, 11, 0), App.Vector(13, -7, 0)), False)
sketch11.addGeometry(Part.LineSegment(App.Vector(13, -7, 0), App.Vector(-5, -7, 0)), False)
sketch11.addGeometry(Part.LineSegment(App.Vector(-5, -7, 0), App.Vector(-5, 11, 0)), False)
sketch11.addGeometry(Part.LineSegment(App.Vector(-5, 11, 0), App.Vector(13, 11, 0)), False)
sketch11.addGeometry(Part.LineSegment(App.Vector(-4, -6, 0), App.Vector(12, -6, 0)), False)
sketch11.addGeometry(Part.LineSegment(App.Vector(12, -6, 0), App.Vector(12, 10, 0)), False)
sketch11.addGeometry(Part.LineSegment(App.Vector(12, 10, 0), App.Vector(-4, 10, 0)), False)
sketch11.addGeometry(Part.LineSegment(App.Vector(-4, 10, 0), App.Vector(-4, -6, 0)), False)
sketch11.addConstraint(Sketcher.Constraint("Coincident", 0, 2, 1, 1))
sketch11.addConstraint(Sketcher.Constraint("Coincident", 1, 2, 2, 1))
sketch11.addConstraint(Sketcher.Constraint("Coincident", 2, 2, 3, 1))
sketch11.addConstraint(Sketcher.Constraint("Coincident", 3, 2, 0, 1))
sketch11.addConstraint(Sketcher.Constraint("Coincident", 4, 2, 5, 1))
sketch11.addConstraint(Sketcher.Constraint("Coincident", 5, 2, 6, 1))
sketch11.addConstraint(Sketcher.Constraint("Coincident", 6, 2, 7, 1))
sketch11.addConstraint(Sketcher.Constraint("Coincident", 7, 2, 4, 1))
sketch11.addConstraint(Sketcher.Constraint("Vertical", 0))
sketch11.addConstraint(Sketcher.Constraint("Horizontal", 1))
sketch11.addConstraint(Sketcher.Constraint("Vertical", 2))
sketch11.addConstraint(Sketcher.Constraint("Horizontal", 3))
sketch11.addConstraint(Sketcher.Constraint("Horizontal", 4))
sketch11.addConstraint(Sketcher.Constraint("Vertical", 5))
sketch11.addConstraint(Sketcher.Constraint("Horizontal", 6))
sketch11.addConstraint(Sketcher.Constraint("Vertical", 7))
sketch11.addConstraint(Sketcher.Constraint("Equal", 3, 0))
sketch11.addConstraint(Sketcher.Constraint("Equal", 6, 5))
sketch11.addConstraint(Sketcher.Constraint("DistanceX", 1, 2, 1, 1, 18.0))
sketch11.addConstraint(Sketcher.Constraint("DistanceX", 4, 1, 4, 2, 16.0))
sketch11.addConstraint(Sketcher.Constraint("DistanceX", -1, 1, 0, 2, 13.0))
sketch11.addConstraint(Sketcher.Constraint("DistanceY", 0, 2, -1, 1, 7.0))
sketch11.addConstraint(Sketcher.Constraint("DistanceX", -1, 1, 4, 2, 12.0))
sketch11.addConstraint(Sketcher.Constraint("DistanceY", 4, 2, -1, 1, 6.0))
pad6 = body.newObject("PartDesign::Pad", "Pad005")
pad6.Profile = sketch11
pad6.Length = 4

sketch12 = body.newObject("Sketcher::SketchObject", "Sketch011")
sketch12.AttachmentSupport = (doc.getObject("XY_Plane"), [""])
sketch12.MapMode = "FlatFace"
sketch12.AttachmentOffset = App.Placement(App.Vector(0, 0, 4.54), App.Rotation())
sketch12.addGeometry(Part.LineSegment(App.Vector(-5, 11, 0), App.Vector(-5, -7, 0)), False)
sketch12.addGeometry(Part.LineSegment(App.Vector(-5, -7, 0), App.Vector(13, -7, 0)), False)
sketch12.addGeometry(Part.LineSegment(App.Vector(13, -7, 0), App.Vector(13, 11, 0)), False)
sketch12.addGeometry(Part.LineSegment(App.Vector(13, 11, 0), App.Vector(-5, 11, 0)), False)
sketch12.addGeometry(Part.LineSegment(App.Vector(12, -6, 0), App.Vector(-4, -6, 0)), False)
sketch12.addGeometry(Part.LineSegment(App.Vector(-4, -6, 0), App.Vector(-4, 10, 0)), False)
sketch12.addGeometry(Part.LineSegment(App.Vector(-4, 10, 0), App.Vector(12, 10, 0)), False)
sketch12.addGeometry(Part.LineSegment(App.Vector(12, 10, 0), App.Vector(12, -6, 0)), False)
sketch12.addConstraint(Sketcher.Constraint("Coincident", 0, 2, 1, 1))
sketch12.addConstraint(Sketcher.Constraint("Coincident", 1, 2, 2, 1))
sketch12.addConstraint(Sketcher.Constraint("Coincident", 2, 2, 3, 1))
sketch12.addConstraint(Sketcher.Constraint("Coincident", 3, 2, 0, 1))
sketch12.addConstraint(Sketcher.Constraint("Coincident", 4, 2, 5, 1))
sketch12.addConstraint(Sketcher.Constraint("Coincident", 5, 2, 6, 1))
sketch12.addConstraint(Sketcher.Constraint("Coincident", 6, 2, 7, 1))
sketch12.addConstraint(Sketcher.Constraint("Coincident", 7, 2, 4, 1))
sketch12.addConstraint(Sketcher.Constraint("Vertical", 0))
sketch12.addConstraint(Sketcher.Constraint("Horizontal", 1))
sketch12.addConstraint(Sketcher.Constraint("Vertical", 2))
sketch12.addConstraint(Sketcher.Constraint("Horizontal", 3))
sketch12.addConstraint(Sketcher.Constraint("Horizontal", 4))
sketch12.addConstraint(Sketcher.Constraint("Vertical", 5))
sketch12.addConstraint(Sketcher.Constraint("Horizontal", 6))
sketch12.addConstraint(Sketcher.Constraint("Vertical", 7))
sketch12.addConstraint(Sketcher.Constraint("Equal", 3, 0))
sketch12.addConstraint(Sketcher.Constraint("Equal", 6, 5))
sketch12.addConstraint(Sketcher.Constraint("DistanceX", 1, 1, 1, 2, 18.0))
sketch12.addConstraint(Sketcher.Constraint("DistanceX", 4, 2, 4, 1, 16.0))
sketch12.addConstraint(Sketcher.Constraint("DistanceX", 0, 2, -1, 1, 5.0))
sketch12.addConstraint(Sketcher.Constraint("DistanceY", 0, 2, -1, 1, 7.0))
sketch12.addConstraint(Sketcher.Constraint("DistanceX", 4, 2, -1, 1, 4.0))
sketch12.addConstraint(Sketcher.Constraint("DistanceY", 4, 2, -1, 1, 6.0))
pad7 = body.newObject("PartDesign::Pad", "Pad006")
pad7.Profile = sketch12
pad7.Length = 1
pad7.Reversed = True

sketch13 = body.newObject("Sketcher::SketchObject", "Sketch012")
sketch13.AttachmentSupport = (doc.getObject("XY_Plane"), [""])
sketch13.MapMode = "FlatFace"
sketch13.AttachmentOffset = App.Placement(App.Vector(0, 0, 4.54), App.Rotation())
sketch13.addGeometry(Part.LineSegment(App.Vector(-1, 7, 0), App.Vector(-1, -3, 0)), False)
sketch13.addGeometry(Part.LineSegment(App.Vector(-1, -3, 0), App.Vector(9, -3, 0)), False)
sketch13.addGeometry(Part.LineSegment(App.Vector(9, -3, 0), App.Vector(9, 7, 0)), False)
sketch13.addGeometry(Part.LineSegment(App.Vector(9, 7, 0), App.Vector(-1, 7, 0)), False)
sketch13.addGeometry(Part.LineSegment(App.Vector(7, -1, 0), App.Vector(1, -1, 0)), False)
sketch13.addGeometry(Part.LineSegment(App.Vector(1, -1, 0), App.Vector(1, 5, 0)), False)
sketch13.addGeometry(Part.LineSegment(App.Vector(1, 5, 0), App.Vector(7, 5, 0)), False)
sketch13.addGeometry(Part.LineSegment(App.Vector(7, 5, 0), App.Vector(7, -1, 0)), False)
sketch13.addConstraint(Sketcher.Constraint("Coincident", 0, 2, 1, 1))
sketch13.addConstraint(Sketcher.Constraint("Coincident", 1, 2, 2, 1))
sketch13.addConstraint(Sketcher.Constraint("Coincident", 2, 2, 3, 1))
sketch13.addConstraint(Sketcher.Constraint("Coincident", 3, 2, 0, 1))
sketch13.addConstraint(Sketcher.Constraint("Coincident", 4, 2, 5, 1))
sketch13.addConstraint(Sketcher.Constraint("Coincident", 5, 2, 6, 1))
sketch13.addConstraint(Sketcher.Constraint("Coincident", 6, 2, 7, 1))
sketch13.addConstraint(Sketcher.Constraint("Coincident", 7, 2, 4, 1))
sketch13.addConstraint(Sketcher.Constraint("Vertical", 0))
sketch13.addConstraint(Sketcher.Constraint("Horizontal", 1))
sketch13.addConstraint(Sketcher.Constraint("Vertical", 2))
sketch13.addConstraint(Sketcher.Constraint("Horizontal", 3))
sketch13.addConstraint(Sketcher.Constraint("Horizontal", 4))
sketch13.addConstraint(Sketcher.Constraint("Vertical", 5))
sketch13.addConstraint(Sketcher.Constraint("Horizontal", 6))
sketch13.addConstraint(Sketcher.Constraint("Vertical", 7))
sketch13.addConstraint(Sketcher.Constraint("Equal", 3, 0))
sketch13.addConstraint(Sketcher.Constraint("Equal", 6, 5))
sketch13.addConstraint(Sketcher.Constraint("DistanceX", 1, 1, 1, 2, 10.0))
sketch13.addConstraint(Sketcher.Constraint("DistanceX", 4, 2, 4, 1, 6.0))
sketch13.addConstraint(Sketcher.Constraint("DistanceX", 0, 2, -1, 1, 1.0))
sketch13.addConstraint(Sketcher.Constraint("DistanceY", 0, 2, -1, 1, 3.0))
sketch13.addConstraint(Sketcher.Constraint("DistanceX", -1, 1, 4, 2, 1.0))
sketch13.addConstraint(Sketcher.Constraint("DistanceY", 4, 2, -1, 1, 1.0))
pad8 = body.newObject("PartDesign::Pad", "Pad007")
pad8.Profile = sketch13
pad8.Length = 150
pad8.Reversed = True

sketch14 = body.newObject("Sketcher::SketchObject", "Sketch013")
sketch14.AttachmentSupport = (doc.getObject("XY_Plane"), [""])
sketch14.MapMode = "FlatFace"
sketch14.AttachmentOffset = App.Placement(App.Vector(0, 0, -145.46), App.Rotation())
sketch14.addGeometry(Part.LineSegment(App.Vector(9, 7, 0), App.Vector(9, -3, 0)), False)
sketch14.addGeometry(Part.LineSegment(App.Vector(9, -3, 0), App.Vector(-1, -3, 0)), False)
sketch14.addGeometry(Part.LineSegment(App.Vector(-1, -3, 0), App.Vector(-1, 7, 0)), False)
sketch14.addGeometry(Part.LineSegment(App.Vector(-1, 7, 0), App.Vector(9, 7, 0)), False)
sketch14.addConstraint(Sketcher.Constraint("Coincident", 0, 2, 1, 1))
sketch14.addConstraint(Sketcher.Constraint("Coincident", 1, 2, 2, 1))
sketch14.addConstraint(Sketcher.Constraint("Coincident", 2, 2, 3, 1))
sketch14.addConstraint(Sketcher.Constraint("Coincident", 3, 2, 0, 1))
sketch14.addConstraint(Sketcher.Constraint("Vertical", 0))
sketch14.addConstraint(Sketcher.Constraint("Horizontal", 1))
sketch14.addConstraint(Sketcher.Constraint("Vertical", 2))
sketch14.addConstraint(Sketcher.Constraint("Horizontal", 3))
sketch14.addConstraint(Sketcher.Constraint("Equal", 3, 0))
sketch14.addConstraint(Sketcher.Constraint("DistanceX", 1, 2, 1, 1, 10.0))
sketch14.addConstraint(Sketcher.Constraint("DistanceX", -1, 1, 0, 2, 9.0))
sketch14.addConstraint(Sketcher.Constraint("DistanceY", 0, 2, -1, 1, 3.0))
pad9 = body.newObject("PartDesign::Pad", "Pad008")
pad9.Profile = sketch14
pad9.Length = 2
pad9.Reversed = True
body2 = doc.addObject("PartDesign::Body", "Body001")

sketch15 = body2.newObject("Sketcher::SketchObject", "Sketch014")
sketch15.AttachmentSupport = (doc.getObject("XY_Plane001"), [""])
sketch15.MapMode = "FlatFace"
sketch15.addGeometry(Part.LineSegment(App.Vector(8, 6, 0), App.Vector(8, -2, 0)), False)
sketch15.addGeometry(Part.LineSegment(App.Vector(8, -2, 0), App.Vector(0, -2, 0)), False)
sketch15.addGeometry(Part.LineSegment(App.Vector(0, -2, 0), App.Vector(0, 6, 0)), False)
sketch15.addGeometry(Part.LineSegment(App.Vector(0, 6, 0), App.Vector(8, 6, 0)), False)
sketch15.addConstraint(Sketcher.Constraint("Coincident", 0, 2, 1, 1))
sketch15.addConstraint(Sketcher.Constraint("Coincident", 1, 2, 2, 1))
sketch15.addConstraint(Sketcher.Constraint("Coincident", 2, 2, 3, 1))
sketch15.addConstraint(Sketcher.Constraint("Coincident", 3, 2, 0, 1))
sketch15.addConstraint(Sketcher.Constraint("Vertical", 0))
sketch15.addConstraint(Sketcher.Constraint("Horizontal", 1))
sketch15.addConstraint(Sketcher.Constraint("Vertical", 2))
sketch15.addConstraint(Sketcher.Constraint("Horizontal", 3))
sketch15.addConstraint(Sketcher.Constraint("PointOnObject", 1, 2, -2))
sketch15.addConstraint(Sketcher.Constraint("Equal", 3, 0))
sketch15.addConstraint(Sketcher.Constraint("DistanceX", 1, 2, 1, 1, 8.0))
sketch15.addConstraint(Sketcher.Constraint("DistanceY", 0, 2, -1, 1, 2.0))
pad10 = body2.newObject("PartDesign::Pad", "Pad009")
pad10.Profile = sketch15
pad10.Length = 0.5
pad10.Reversed = True

sketch16 = body2.newObject("Sketcher::SketchObject", "Sketch015")
sketch16.AttachmentSupport = (doc.getObject("XY_Plane001"), [""])
sketch16.MapMode = "FlatFace"
sketch16.AttachmentOffset = App.Placement(App.Vector(0, 0, -0.5), App.Rotation())
sketch16.addGeometry(Part.LineSegment(App.Vector(8, 6, 0), App.Vector(8, -2, 0)), False)
sketch16.addGeometry(Part.LineSegment(App.Vector(8, -2, 0), App.Vector(0, -2, 0)), False)
sketch16.addGeometry(Part.LineSegment(App.Vector(0, -2, 0), App.Vector(0, 6, 0)), False)
sketch16.addGeometry(Part.LineSegment(App.Vector(0, 6, 0), App.Vector(8, 6, 0)), False)
sketch16.addConstraint(Sketcher.Constraint("Coincident", 0, 2, 1, 1))
sketch16.addConstraint(Sketcher.Constraint("Coincident", 1, 2, 2, 1))
sketch16.addConstraint(Sketcher.Constraint("Coincident", 2, 2, 3, 1))
sketch16.addConstraint(Sketcher.Constraint("Coincident", 3, 2, 0, 1))
sketch16.addConstraint(Sketcher.Constraint("Vertical", 0))
sketch16.addConstraint(Sketcher.Constraint("Horizontal", 1))
sketch16.addConstraint(Sketcher.Constraint("Vertical", 2))
sketch16.addConstraint(Sketcher.Constraint("Horizontal", 3))
sketch16.addConstraint(Sketcher.Constraint("PointOnObject", 1, 2, -2))
sketch16.addConstraint(Sketcher.Constraint("Equal", 3, 0))
sketch16.addConstraint(Sketcher.Constraint("DistanceX", 1, 2, 1, 1, 8.0))
sketch16.addConstraint(Sketcher.Constraint("DistanceY", 0, 2, -1, 1, 2.0))
pocket6 = body2.newObject("PartDesign::Pocket", "Pocket005")
pocket6.Profile = sketch16
pocket6.Length = 2
pocket6.Reversed = True

doc.recompute()
